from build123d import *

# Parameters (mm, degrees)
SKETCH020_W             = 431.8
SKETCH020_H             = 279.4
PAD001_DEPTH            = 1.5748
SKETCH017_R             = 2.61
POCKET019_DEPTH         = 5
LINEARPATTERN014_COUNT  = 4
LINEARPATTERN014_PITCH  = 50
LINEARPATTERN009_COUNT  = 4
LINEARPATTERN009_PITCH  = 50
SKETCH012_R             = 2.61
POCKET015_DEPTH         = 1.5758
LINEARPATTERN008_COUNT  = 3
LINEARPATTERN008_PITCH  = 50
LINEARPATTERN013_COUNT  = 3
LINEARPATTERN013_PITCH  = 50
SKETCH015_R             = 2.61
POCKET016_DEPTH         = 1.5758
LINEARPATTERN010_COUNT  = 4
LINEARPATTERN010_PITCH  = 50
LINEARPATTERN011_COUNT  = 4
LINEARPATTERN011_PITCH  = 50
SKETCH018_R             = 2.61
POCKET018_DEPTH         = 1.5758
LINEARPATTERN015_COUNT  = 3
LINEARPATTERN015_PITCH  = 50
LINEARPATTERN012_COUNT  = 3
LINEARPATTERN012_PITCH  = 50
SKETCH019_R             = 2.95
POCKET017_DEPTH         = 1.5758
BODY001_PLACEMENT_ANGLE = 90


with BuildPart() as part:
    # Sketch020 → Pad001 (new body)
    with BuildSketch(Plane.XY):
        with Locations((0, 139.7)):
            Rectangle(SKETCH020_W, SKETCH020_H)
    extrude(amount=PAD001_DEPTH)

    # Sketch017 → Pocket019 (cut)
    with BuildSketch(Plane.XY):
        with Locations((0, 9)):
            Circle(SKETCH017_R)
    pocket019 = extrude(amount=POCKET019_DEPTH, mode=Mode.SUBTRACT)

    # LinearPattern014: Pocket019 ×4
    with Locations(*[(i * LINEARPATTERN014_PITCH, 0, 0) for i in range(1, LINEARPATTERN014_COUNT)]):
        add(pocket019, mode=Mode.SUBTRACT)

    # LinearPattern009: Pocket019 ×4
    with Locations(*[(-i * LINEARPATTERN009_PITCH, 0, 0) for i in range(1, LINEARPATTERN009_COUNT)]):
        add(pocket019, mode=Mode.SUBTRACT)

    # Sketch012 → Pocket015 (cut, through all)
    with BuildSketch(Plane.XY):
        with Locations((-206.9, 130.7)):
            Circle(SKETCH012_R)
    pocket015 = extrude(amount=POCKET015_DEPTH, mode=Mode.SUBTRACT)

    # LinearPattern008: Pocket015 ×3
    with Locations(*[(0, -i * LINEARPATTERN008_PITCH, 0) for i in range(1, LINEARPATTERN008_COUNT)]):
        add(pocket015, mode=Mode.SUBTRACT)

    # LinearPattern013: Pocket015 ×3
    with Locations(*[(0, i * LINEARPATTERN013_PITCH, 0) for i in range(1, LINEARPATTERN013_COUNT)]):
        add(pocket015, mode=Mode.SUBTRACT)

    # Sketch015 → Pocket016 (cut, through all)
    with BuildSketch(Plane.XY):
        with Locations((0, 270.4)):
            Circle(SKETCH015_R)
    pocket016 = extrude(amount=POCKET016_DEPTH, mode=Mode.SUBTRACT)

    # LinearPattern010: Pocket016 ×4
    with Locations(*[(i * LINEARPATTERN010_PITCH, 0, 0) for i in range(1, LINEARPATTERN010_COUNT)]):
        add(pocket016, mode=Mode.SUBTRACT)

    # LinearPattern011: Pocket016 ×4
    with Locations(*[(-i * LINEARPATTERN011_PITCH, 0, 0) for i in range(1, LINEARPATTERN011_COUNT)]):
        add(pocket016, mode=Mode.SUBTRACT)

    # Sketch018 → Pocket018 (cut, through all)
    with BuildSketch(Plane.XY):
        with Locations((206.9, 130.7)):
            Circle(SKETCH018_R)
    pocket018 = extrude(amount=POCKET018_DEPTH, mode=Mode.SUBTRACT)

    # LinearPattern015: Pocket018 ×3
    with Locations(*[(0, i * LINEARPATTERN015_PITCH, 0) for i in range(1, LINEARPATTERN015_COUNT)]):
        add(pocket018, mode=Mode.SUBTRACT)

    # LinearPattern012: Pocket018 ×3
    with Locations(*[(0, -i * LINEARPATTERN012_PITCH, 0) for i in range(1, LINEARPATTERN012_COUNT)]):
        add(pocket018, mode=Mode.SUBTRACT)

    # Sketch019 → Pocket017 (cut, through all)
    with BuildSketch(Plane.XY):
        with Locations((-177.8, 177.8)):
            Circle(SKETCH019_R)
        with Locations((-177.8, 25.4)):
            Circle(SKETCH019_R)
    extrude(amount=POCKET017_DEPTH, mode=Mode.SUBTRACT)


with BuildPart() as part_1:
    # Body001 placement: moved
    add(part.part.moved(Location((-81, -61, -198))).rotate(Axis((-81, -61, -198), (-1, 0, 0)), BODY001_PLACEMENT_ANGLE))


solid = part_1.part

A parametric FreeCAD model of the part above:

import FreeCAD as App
import Part
import Sketcher
Q = App.Units.Quantity


def add_polygon(sketch, points):
    """Adds a closed chain of lines whose ends are joined by coincident constraints."""
    first, n = sketch.GeometryCount, len(points)
    for a, b in zip(points, points[1:] + points[:1]):
        sketch.addGeometry(Part.LineSegment(App.Vector(*a, 0), App.Vector(*b, 0)), False)
    for i in range(n):
        sketch.addConstraint(Sketcher.Constraint("Coincident", first + i, 2, first + (i + 1) % n, 1))

doc = App.newDocument("Part")
params = doc.addObject("Spreadsheet::Sheet", "Params")
for row, (alias, value) in enumerate([
    ("sketch1_width", "17 in"),
    ("sketch1_height", "11 in"),
    ("pad1_length", "0.062 in"),
    ("pocket1_length", "5 mm"),
    ("linearpattern_pitch", "50 mm"),
    ("linearpattern2_pitch", "50 mm"),
    ("linearpattern3_pitch", "50 mm"),
    ("linearpattern4_pitch", "50 mm"),
    ("linearpattern5_pitch", "50 mm"),
    ("linearpattern6_pitch", "50 mm"),
    ("linearpattern7_pitch", "50 mm"),
    ("linearpattern8_pitch", "50 mm"),
], start=1):
    params.set(f"A{row}", alias)
    params.set(f"B{row}", "=" + value)
    params.setAlias(f"B{row}", alias)

body = doc.addObject("PartDesign::Body", "Body")

sketch1 = doc.addObject("Sketcher::SketchObject", "Sketch")
body.addObject(sketch1)
sketch1.AttachmentSupport = (doc.XY_Plane, [""])
sketch1.MapMode = "FlatFace"
add_polygon(sketch1, [(-216, 279), (-216, 0), (216, 0), (216, 279)])
sketch1.addConstraint([
    Sketcher.Constraint("Vertical", 0),
    Sketcher.Constraint("Horizontal", 1),
    Sketcher.Constraint("Vertical", 2),
    Sketcher.Constraint("Horizontal", 3),
    Sketcher.Constraint("Symmetric", 0, 2, 1, 2, -1, 1),
    Sketcher.Constraint("DistanceX", 1, 1, 1, 2, Q("17 in")),
    Sketcher.Constraint("DistanceY", 0, 2, 0, 1, Q("11 in")),
])
sketch1.setExpression("Constraints[9]", "Params.sketch1_width")
sketch1.setExpression("Constraints[10]", "Params.sketch1_height")
pad1 = doc.addObject("PartDesign::Pad", "Pad")
body.addObject(pad1)
pad1.Profile = sketch1
pad1.setExpression("Length", "Params.pad1_length")

sketch2 = doc.addObject("Sketcher::SketchObject", "Sketch001")
body.addObject(sketch2)
sketch2.AttachmentSupport = (doc.XY_Plane, [""])
sketch2.MapMode = "FlatFace"
sketch2.addGeometry(Part.Circle(App.Vector(0, 9, 0), App.Vector(0, 0, 1), 2.6), False)
sketch2.addConstraint([
    Sketcher.Constraint("PointOnObject", 0, 3, -2),
    Sketcher.Constraint("Diameter", 0, 5.22),
    Sketcher.Constraint("DistanceY", -1, 1, 0, 3, 9.0),
])
pocket1 = doc.addObject("PartDesign::Pocket", "Pocket")
body.addObject(pocket1)
pocket1.Profile = sketch2
pocket1.setExpression("Length", "Params.pocket1_length")
pocket1.Reversed = True
doc.recompute()

linearpattern = doc.addObject("PartDesign::LinearPattern", "LinearPattern")
body.addObject(linearpattern)
linearpattern.Originals = [pocket1]
linearpattern.Direction = (doc.X_Axis, [""])
linearpattern.Mode = "offset"
linearpattern.setExpression("Offset", "Params.linearpattern_pitch")
linearpattern.Occurrences = 4
body.Tip = linearpattern
doc.recompute()

linearpattern2 = doc.addObject("PartDesign::LinearPattern", "LinearPattern001")
body.addObject(linearpattern2)
linearpattern2.Originals = [pocket1]
linearpattern2.Direction = (doc.X_Axis, [""])
linearpattern2.Mode = "offset"
linearpattern2.setExpression("Offset", "Params.linearpattern2_pitch")
linearpattern2.Occurrences = 4
linearpattern2.Reversed = True
body.Tip = linearpattern2

sketch3 = doc.addObject("Sketcher::SketchObject", "Sketch002")
body.addObject(sketch3)
sketch3.AttachmentSupport = (doc.XY_Plane, [""])
sketch3.MapMode = "FlatFace"
sketch3.addGeometry(Part.Circle(App.Vector(-206.9, 130.7, 0), App.Vector(0, 0, 1), 2.6), False)
sketch3.addConstraint([
    Sketcher.Constraint("Diameter", 0, 5.22),
    Sketcher.Constraint("DistanceX", 0, 3, -1, 1, 206.9),
    Sketcher.Constraint("DistanceY", -1, 1, 0, 3, 130.7),
])
pocket2 = doc.addObject("PartDesign::Pocket", "Pocket001")
body.addObject(pocket2)
pocket2.Profile = sketch3
pocket2.Type = "ThroughAll"
pocket2.Reversed = True
doc.recompute()

linearpattern3 = doc.addObject("PartDesign::LinearPattern", "LinearPattern002")
body.addObject(linearpattern3)
linearpattern3.Originals = [pocket2]
linearpattern3.Direction = (doc.Y_Axis, [""])
linearpattern3.Mode = "offset"
linearpattern3.setExpression("Offset", "Params.linearpattern3_pitch")
linearpattern3.Occurrences = 3
linearpattern3.Reversed = True
body.Tip = linearpattern3
doc.recompute()

linearpattern4 = doc.addObject("PartDesign::LinearPattern", "LinearPattern003")
body.addObject(linearpattern4)
linearpattern4.Originals = [pocket2]
linearpattern4.Direction = (doc.Y_Axis, [""])
linearpattern4.Mode = "offset"
linearpattern4.setExpression("Offset", "Params.linearpattern4_pitch")
linearpattern4.Occurrences = 3
body.Tip = linearpattern4

sketch4 = doc.addObject("Sketcher::SketchObject", "Sketch003")
body.addObject(sketch4)
sketch4.AttachmentSupport = (doc.XY_Plane, [""])
sketch4.MapMode = "FlatFace"
sketch4.addGeometry(Part.Circle(App.Vector(0, 270.4, 0), App.Vector(0, 0, 1), 2.6), False)
sketch4.addConstraint([
    Sketcher.Constraint("PointOnObject", 0, 3, -2),
    Sketcher.Constraint("Diameter", 0, 5.22),
    Sketcher.Constraint("DistanceY", -1, 1, 0, 3, 270.4),
])
pocket3 = doc.addObject("PartDesign::Pocket", "Pocket002")
body.addObject(pocket3)
pocket3.Profile = sketch4
pocket3.Type = "ThroughAll"
pocket3.Reversed = True
doc.recompute()

linearpattern5 = doc.addObject("PartDesign::LinearPattern", "LinearPattern004")
body.addObject(linearpattern5)
linearpattern5.Originals = [pocket3]
linearpattern5.Direction = (doc.X_Axis, [""])
linearpattern5.Mode = "offset"
linearpattern5.setExpression("Offset", "Params.linearpattern5_pitch")
linearpattern5.Occurrences = 4
body.Tip = linearpattern5
doc.recompute()

linearpattern6 = doc.addObject("PartDesign::LinearPattern", "LinearPattern005")
body.addObject(linearpattern6)
linearpattern6.Originals = [pocket3]
linearpattern6.Direction = (doc.X_Axis, [""])
linearpattern6.Mode = "offset"
linearpattern6.setExpression("Offset", "Params.linearpattern6_pitch")
linearpattern6.Occurrences = 4
linearpattern6.Reversed = True
body.Tip = linearpattern6

sketch5 = doc.addObject("Sketcher::SketchObject", "Sketch004")
body.addObject(sketch5)
sketch5.AttachmentSupport = (doc.XY_Plane, [""])
sketch5.MapMode = "FlatFace"
sketch5.addGeometry(Part.Circle(App.Vector(206.9, 130.7, 0), App.Vector(0, 0, 1), 2.6), False)
sketch5.addConstraint([
    Sketcher.Constraint("Diameter", 0, 5.22),
    Sketcher.Constraint("DistanceX", -1, 1, 0, 3, 206.9),
    Sketcher.Constraint("DistanceY", -1, 1, 0, 3, 130.7),
])
pocket4 = doc.addObject("PartDesign::Pocket", "Pocket003")
body.addObject(pocket4)
pocket4.Profile = sketch5
pocket4.Type = "ThroughAll"
pocket4.Reversed = True
doc.recompute()

linearpattern7 = doc.addObject("PartDesign::LinearPattern", "LinearPattern006")
body.addObject(linearpattern7)
linearpattern7.Originals = [pocket4]
linearpattern7.Direction = (doc.Y_Axis, [""])
linearpattern7.Mode = "offset"
linearpattern7.setExpression("Offset", "Params.linearpattern7_pitch")
linearpattern7.Occurrences = 3
body.Tip = linearpattern7
doc.recompute()

linearpattern8 = doc.addObject("PartDesign::LinearPattern", "LinearPattern007")
body.addObject(linearpattern8)
linearpattern8.Originals = [pocket4]
linearpattern8.Direction = (doc.Y_Axis, [""])
linearpattern8.Mode = "offset"
linearpattern8.setExpression("Offset", "Params.linearpattern8_pitch")
linearpattern8.Occurrences = 3
linearpattern8.Reversed = True
body.Tip = linearpattern8

sketch6 = doc.addObject("Sketcher::SketchObject", "Sketch005")
body.addObject(sketch6)
sketch6.AttachmentSupport = (doc.XY_Plane, [""])
sketch6.MapMode = "FlatFace"
sketch6.addGeometry([
    Part.Circle(App.Vector(-177.8, 177.8, 0), App.Vector(0, 0, 1), 3),
    Part.Circle(App.Vector(-177.8, 25.4, 0), App.Vector(0, 0, 1), 3),
], False)
sketch6.addConstraint([
    Sketcher.Constraint("Equal", 0, 1),
    Sketcher.Constraint("Vertical", 0, 3, 1, 3),
    Sketcher.Constraint("DistanceX", 0, 3, -1, 1, Q("7 in")),
    Sketcher.Constraint("DistanceY", -1, 1, 0, 3, Q("7 in")),
    Sketcher.Constraint("DistanceY", -1, 1, 1, 3, Q("1 in")),
    Sketcher.Constraint("Diameter", 0, 5.9),
])
pocket5 = doc.addObject("PartDesign::Pocket", "Pocket004")
body.addObject(pocket5)
pocket5.Profile = sketch6
pocket5.Type = "ThroughAll"
pocket5.Reversed = True
body2 = doc.addObject("PartDesign::Body", "Body001")
doc.recompute()

body.Placement = App.Placement(App.Vector(-81, -61, -198), App.Rotation(App.Vector(-1, 0, 0), 90))
boolean = doc.addObject("PartDesign::Boolean", "Boolean")
body2.addObject(boolean)
boolean.Type = "Fuse"
boolean.addObjects([body])

doc.recompute()
